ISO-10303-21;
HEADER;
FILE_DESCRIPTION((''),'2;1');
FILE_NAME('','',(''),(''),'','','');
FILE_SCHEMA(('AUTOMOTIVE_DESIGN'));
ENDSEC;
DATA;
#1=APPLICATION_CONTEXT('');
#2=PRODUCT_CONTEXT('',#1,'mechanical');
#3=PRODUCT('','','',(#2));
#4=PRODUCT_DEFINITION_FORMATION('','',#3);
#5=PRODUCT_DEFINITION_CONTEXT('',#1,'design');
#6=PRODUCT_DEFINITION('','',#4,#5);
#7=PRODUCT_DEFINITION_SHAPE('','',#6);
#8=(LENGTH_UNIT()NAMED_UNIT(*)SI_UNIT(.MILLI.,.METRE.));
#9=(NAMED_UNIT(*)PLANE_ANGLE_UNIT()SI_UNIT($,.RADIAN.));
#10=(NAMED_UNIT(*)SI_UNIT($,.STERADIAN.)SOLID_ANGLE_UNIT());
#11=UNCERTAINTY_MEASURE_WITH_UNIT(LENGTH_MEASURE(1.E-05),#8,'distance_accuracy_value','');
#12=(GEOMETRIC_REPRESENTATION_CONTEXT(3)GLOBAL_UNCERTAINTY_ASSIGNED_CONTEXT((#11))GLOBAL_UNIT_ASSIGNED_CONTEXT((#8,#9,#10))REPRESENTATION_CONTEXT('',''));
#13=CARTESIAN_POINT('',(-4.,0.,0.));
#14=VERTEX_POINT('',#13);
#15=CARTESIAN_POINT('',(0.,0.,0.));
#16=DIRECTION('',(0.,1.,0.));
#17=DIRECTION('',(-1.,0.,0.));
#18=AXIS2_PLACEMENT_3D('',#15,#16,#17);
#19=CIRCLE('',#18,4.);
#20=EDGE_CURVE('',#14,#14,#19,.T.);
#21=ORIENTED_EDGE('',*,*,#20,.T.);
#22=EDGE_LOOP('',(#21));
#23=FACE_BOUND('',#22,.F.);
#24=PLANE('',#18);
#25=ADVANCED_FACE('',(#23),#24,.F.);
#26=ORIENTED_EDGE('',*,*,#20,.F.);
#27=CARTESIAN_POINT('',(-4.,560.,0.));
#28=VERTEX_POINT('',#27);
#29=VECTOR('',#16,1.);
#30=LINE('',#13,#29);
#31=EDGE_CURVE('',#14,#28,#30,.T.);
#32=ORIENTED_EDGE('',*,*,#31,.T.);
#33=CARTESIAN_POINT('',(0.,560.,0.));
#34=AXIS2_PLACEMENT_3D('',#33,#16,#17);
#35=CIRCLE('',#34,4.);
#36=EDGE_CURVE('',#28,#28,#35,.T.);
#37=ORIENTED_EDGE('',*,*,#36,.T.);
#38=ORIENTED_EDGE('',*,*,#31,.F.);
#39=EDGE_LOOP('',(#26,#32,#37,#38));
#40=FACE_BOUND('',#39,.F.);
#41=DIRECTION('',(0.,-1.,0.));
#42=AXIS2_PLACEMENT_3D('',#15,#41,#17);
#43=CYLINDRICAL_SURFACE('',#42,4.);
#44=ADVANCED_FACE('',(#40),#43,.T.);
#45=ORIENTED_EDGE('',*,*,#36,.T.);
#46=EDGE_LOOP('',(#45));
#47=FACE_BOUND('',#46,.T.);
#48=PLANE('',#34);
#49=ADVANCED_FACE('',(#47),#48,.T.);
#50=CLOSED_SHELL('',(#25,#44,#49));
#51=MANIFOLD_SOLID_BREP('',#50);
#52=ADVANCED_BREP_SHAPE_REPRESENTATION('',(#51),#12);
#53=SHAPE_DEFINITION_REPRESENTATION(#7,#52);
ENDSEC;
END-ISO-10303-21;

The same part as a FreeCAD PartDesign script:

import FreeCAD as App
import Part
import Sketcher

V = App.Vector
Q = App.Units.Quantity

doc = App.newDocument("Part")
body = doc.addObject("PartDesign::Body", "Body")

# Sketch on XZ plane
sketch1 = body.newObject("Sketcher::SketchObject", "Sketch")
sketch1.AttachmentSupport = (doc.getObject("XZ_Plane"), [""])
sketch1.MapMode = "FlatFace"
sketch1.addGeometry(Part.Circle(V(0, 0, 0), V(0, 0, 1), 4), False)
sketch1.addConstraint([
    Sketcher.Constraint("Coincident", 0, 3, -1, 1),
    Sketcher.Constraint("Diameter", 0, Q("8 mm")),
])
pad1 = body.newObject("PartDesign::Pad", "Pad")
pad1.Profile = sketch1
pad1.Length = 560
pad1.Reversed = True

doc.recompute()
